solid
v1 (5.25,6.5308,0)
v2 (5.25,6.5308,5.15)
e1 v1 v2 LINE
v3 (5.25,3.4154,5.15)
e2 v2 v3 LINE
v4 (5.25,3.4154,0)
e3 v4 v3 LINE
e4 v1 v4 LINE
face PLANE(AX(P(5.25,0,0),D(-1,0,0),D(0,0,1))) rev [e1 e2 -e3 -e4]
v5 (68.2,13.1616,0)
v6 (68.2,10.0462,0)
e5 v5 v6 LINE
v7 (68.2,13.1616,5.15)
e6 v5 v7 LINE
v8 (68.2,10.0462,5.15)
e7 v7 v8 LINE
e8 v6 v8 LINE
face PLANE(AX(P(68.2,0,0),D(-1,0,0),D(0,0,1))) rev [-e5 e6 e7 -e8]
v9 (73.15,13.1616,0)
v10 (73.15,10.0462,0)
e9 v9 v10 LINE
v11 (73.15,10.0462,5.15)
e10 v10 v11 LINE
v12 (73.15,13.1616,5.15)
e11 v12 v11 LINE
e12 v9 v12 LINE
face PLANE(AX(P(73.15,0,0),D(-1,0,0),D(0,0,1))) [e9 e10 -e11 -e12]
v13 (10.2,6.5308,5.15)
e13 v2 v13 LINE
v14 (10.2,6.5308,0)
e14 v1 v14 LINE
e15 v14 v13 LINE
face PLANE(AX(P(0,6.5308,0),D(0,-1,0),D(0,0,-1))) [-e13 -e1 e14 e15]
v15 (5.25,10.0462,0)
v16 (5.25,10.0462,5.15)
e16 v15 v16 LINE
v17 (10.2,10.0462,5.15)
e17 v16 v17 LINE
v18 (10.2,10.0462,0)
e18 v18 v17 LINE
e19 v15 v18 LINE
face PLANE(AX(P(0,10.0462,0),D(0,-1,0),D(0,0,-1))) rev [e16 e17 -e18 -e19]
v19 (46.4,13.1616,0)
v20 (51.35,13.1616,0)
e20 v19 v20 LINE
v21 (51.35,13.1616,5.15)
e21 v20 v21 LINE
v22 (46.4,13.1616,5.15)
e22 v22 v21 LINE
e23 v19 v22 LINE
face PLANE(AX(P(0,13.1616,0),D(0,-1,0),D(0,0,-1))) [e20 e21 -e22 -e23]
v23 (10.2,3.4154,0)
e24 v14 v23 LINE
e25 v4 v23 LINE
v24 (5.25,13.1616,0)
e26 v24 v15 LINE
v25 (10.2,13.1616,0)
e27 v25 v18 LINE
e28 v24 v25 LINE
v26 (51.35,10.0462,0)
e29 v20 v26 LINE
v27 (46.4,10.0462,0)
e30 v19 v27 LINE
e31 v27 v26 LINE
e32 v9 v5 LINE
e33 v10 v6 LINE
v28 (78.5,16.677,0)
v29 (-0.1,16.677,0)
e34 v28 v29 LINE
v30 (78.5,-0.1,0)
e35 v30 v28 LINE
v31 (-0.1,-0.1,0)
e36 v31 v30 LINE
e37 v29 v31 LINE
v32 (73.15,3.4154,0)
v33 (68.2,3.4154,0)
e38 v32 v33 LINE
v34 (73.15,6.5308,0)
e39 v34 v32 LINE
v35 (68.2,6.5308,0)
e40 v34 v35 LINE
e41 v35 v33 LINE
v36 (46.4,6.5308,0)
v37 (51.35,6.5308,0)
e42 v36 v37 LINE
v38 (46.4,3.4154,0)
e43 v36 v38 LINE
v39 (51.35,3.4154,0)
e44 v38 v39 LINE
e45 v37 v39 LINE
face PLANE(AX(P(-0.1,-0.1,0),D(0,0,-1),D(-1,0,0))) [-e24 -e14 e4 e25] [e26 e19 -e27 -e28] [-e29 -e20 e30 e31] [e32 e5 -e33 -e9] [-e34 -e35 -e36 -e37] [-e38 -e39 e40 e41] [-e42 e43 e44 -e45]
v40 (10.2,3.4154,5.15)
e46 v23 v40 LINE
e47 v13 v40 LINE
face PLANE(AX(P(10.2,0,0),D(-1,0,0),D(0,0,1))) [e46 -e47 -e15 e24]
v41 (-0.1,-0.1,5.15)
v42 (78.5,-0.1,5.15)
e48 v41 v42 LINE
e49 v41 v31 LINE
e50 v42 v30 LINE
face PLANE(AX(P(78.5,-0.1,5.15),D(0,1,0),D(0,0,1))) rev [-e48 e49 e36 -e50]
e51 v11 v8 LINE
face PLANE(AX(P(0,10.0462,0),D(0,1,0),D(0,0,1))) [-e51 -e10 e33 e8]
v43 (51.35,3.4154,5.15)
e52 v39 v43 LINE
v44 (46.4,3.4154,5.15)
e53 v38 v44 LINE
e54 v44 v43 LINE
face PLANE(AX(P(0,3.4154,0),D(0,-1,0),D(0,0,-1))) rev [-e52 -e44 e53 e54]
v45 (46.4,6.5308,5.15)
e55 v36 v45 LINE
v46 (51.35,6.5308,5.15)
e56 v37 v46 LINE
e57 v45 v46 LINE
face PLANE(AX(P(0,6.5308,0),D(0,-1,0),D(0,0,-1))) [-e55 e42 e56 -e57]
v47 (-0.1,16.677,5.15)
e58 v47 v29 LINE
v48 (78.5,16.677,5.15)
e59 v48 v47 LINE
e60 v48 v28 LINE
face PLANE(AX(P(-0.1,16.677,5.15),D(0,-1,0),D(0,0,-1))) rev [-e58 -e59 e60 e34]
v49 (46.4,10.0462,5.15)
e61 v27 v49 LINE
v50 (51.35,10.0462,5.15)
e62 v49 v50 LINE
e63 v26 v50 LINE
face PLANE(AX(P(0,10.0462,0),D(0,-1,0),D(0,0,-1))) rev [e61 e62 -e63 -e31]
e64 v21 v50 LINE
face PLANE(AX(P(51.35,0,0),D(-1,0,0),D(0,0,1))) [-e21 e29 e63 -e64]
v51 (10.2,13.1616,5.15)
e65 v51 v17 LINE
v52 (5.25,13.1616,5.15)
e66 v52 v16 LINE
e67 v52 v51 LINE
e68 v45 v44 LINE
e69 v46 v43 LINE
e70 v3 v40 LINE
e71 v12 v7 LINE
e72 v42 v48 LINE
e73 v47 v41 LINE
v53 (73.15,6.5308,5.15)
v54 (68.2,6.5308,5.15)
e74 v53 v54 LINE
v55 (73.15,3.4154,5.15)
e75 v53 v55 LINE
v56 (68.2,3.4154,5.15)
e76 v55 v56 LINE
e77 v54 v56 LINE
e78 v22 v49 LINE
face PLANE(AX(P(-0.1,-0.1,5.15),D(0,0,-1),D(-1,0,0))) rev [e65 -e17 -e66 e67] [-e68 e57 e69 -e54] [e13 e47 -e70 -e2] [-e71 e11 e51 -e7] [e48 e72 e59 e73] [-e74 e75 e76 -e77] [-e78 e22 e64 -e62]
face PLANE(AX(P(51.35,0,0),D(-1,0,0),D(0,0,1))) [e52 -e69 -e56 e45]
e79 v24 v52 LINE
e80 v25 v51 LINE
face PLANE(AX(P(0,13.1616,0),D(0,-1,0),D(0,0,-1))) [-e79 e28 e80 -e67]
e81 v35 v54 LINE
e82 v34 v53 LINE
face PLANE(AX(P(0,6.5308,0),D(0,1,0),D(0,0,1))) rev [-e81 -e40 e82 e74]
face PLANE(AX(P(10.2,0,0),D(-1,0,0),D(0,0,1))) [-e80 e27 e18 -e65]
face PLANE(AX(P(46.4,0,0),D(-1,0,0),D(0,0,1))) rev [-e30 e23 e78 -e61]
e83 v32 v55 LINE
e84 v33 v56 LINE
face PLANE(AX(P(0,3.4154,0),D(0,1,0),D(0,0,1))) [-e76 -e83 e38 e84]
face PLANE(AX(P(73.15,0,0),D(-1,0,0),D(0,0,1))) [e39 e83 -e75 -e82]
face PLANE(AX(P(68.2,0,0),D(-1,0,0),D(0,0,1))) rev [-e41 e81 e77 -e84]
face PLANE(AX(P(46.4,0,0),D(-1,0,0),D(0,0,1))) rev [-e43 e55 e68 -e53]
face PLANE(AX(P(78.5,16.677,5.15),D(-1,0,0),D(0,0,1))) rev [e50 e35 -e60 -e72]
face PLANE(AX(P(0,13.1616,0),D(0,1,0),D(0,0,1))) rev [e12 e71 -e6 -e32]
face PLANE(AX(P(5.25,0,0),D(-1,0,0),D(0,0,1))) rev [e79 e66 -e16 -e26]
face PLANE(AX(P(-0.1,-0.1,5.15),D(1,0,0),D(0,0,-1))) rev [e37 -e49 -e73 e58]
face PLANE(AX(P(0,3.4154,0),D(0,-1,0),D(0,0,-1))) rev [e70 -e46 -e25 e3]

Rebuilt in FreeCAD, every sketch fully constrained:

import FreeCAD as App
import Part
import Sketcher


def add_polygon(sketch, points):
    """Adds a closed chain of lines whose ends are joined by coincident constraints."""
    first, n = sketch.GeometryCount, len(points)
    for a, b in zip(points, points[1:] + points[:1]):
        sketch.addGeometry(Part.LineSegment(App.Vector(*a, 0), App.Vector(*b, 0)), False)
    for i in range(n):
        sketch.addConstraint(Sketcher.Constraint("Coincident", first + i, 2, first + (i + 1) % n, 1))

doc = App.newDocument("Part")
body = doc.addObject("PartDesign::Body", "Body")

# Sketch on XY plane
sketch1 = body.newObject("Sketcher::SketchObject", "Sketch")
sketch1.AttachmentSupport = (doc.getObject("XY_Plane"), [""])
sketch1.MapMode = "FlatFace"
add_polygon(sketch1, [(0, 17), (0, 0), (78, 0), (78, 17)])  # lines 0-3
sketch1.addConstraint([
    Sketcher.Constraint("Vertical", 0),
    Sketcher.Constraint("Horizontal", 1),
    Sketcher.Constraint("Vertical", 2),
    Sketcher.Constraint("Horizontal", 3),
    Sketcher.Constraint("DistanceX", 1, 1, 1, 2, 78.6),
    Sketcher.Constraint("DistanceX", 0, 2, -1, 1, 0.1),
    Sketcher.Constraint("DistanceY", 0, 2, -1, 1, 0.1),
    Sketcher.Constraint("DistanceY", 0, 2, 0, 1, 16.777),
])
pad1 = body.newObject("PartDesign::Pad", "Pad")
pad1.Profile = sketch1
pad1.Length = 5.15

# Sketch on XY plane
sketch2 = body.newObject("Sketcher::SketchObject", "Sketch001")
sketch2.AttachmentSupport = (doc.getObject("XY_Plane"), [""])
sketch2.MapMode = "FlatFace"
sketch2.AttachmentOffset = App.Placement(App.Vector(0, 0, 5.15), App.Rotation())
add_polygon(sketch2, [(5.2, 13.2), (5.2, 10), (10.2, 10), (10.2, 13.2)])  # lines 0-3
add_polygon(sketch2, [(5.2, 6.5), (5.2, 3.4), (10.2, 3.4), (10.2, 6.5)])  # lines 4-7
add_polygon(sketch2, [(46.4, 13.2), (46.4, 10), (51.4, 10), (51.4, 13.2)])  # lines 8-11
add_polygon(sketch2, [(46.4, 6.5), (46.4, 3.4), (51.4, 3.4), (51.4, 6.5)])  # lines 12-15
add_polygon(sketch2, [(68.2, 13.2), (68.2, 10), (73.2, 10), (73.2, 13.2)])  # lines 16-19
add_polygon(sketch2, [(68.2, 6.5), (68.2, 3.4), (73.2, 3.4), (73.2, 6.5)])  # lines 20-23
sketch2.addConstraint([
    Sketcher.Constraint("Vertical", 0),
    Sketcher.Constraint("Horizontal", 1),
    Sketcher.Constraint("Vertical", 2),
    Sketcher.Constraint("Horizontal", 3),
    Sketcher.Constraint("Vertical", 4),
    Sketcher.Constraint("Horizontal", 5),
    Sketcher.Constraint("Vertical", 6),
    Sketcher.Constraint("Horizontal", 7),
    Sketcher.Constraint("Vertical", 8),
    Sketcher.Constraint("Horizontal", 9),
    Sketcher.Constraint("Vertical", 10),
    Sketcher.Constraint("Horizontal", 11),
    Sketcher.Constraint("Vertical", 12),
    Sketcher.Constraint("Horizontal", 13),
    Sketcher.Constraint("Vertical", 14),
    Sketcher.Constraint("Horizontal", 15),
    Sketcher.Constraint("Vertical", 16),
    Sketcher.Constraint("Horizontal", 17),
    Sketcher.Constraint("Vertical", 18),
    Sketcher.Constraint("Horizontal", 19),
    Sketcher.Constraint("Vertical", 20),
    Sketcher.Constraint("Horizontal", 21),
    Sketcher.Constraint("Vertical", 22),
    Sketcher.Constraint("Horizontal", 23),
    Sketcher.Constraint("Horizontal", 1, 2, 8, 2),
    Sketcher.Constraint("Horizontal", 3, 2, 10, 2),
    Sketcher.Constraint("Horizontal", 5, 2, 12, 2),
    Sketcher.Constraint("Horizontal", 7, 2, 14, 2),
    Sketcher.Constraint("Horizontal", 9, 2, 16, 2),
    Sketcher.Constraint("Horizontal", 11, 2, 18, 2),
    Sketcher.Constraint("Horizontal", 13, 2, 20, 2),
    Sketcher.Constraint("Horizontal", 15, 2, 22, 2),
    Sketcher.Constraint("Vertical", 3, 2, 4, 2),
    Sketcher.Constraint("Vertical", 2, 2, 5, 2),
    Sketcher.Constraint("Vertical", 11, 2, 12, 2),
    Sketcher.Constraint("Vertical", 10, 2, 13, 2),
    Sketcher.Constraint("Vertical", 19, 2, 20, 2),
    Sketcher.Constraint("Vertical", 18, 2, 21, 2),
    Sketcher.Constraint("Equal", 7, 9),
    Sketcher.Constraint("Equal", 15, 17),
    Sketcher.Constraint("Equal", 2, 4),
    Sketcher.Constraint("DistanceX", 1, 1, 1, 2, 4.95),
    Sketcher.Constraint("DistanceX", -1, 1, 1, 2, 10.2),
    Sketcher.Constraint("DistanceX", -1, 1, 8, 2, 46.4),
    Sketcher.Constraint("DistanceX", -1, 1, 16, 2, 68.2),
    Sketcher.Constraint("DistanceY", 0, 2, 0, 1, 3.1154),
    Sketcher.Constraint("DistanceY", -1, 1, 0, 2, 10.0462),
    Sketcher.Constraint("DistanceY", -1, 1, 4, 2, 3.4154),
])
pocket1 = body.newObject("PartDesign::Pocket", "Pocket")
pocket1.Profile = sketch2
pocket1.Type = "ThroughAll"

doc.recompute()
